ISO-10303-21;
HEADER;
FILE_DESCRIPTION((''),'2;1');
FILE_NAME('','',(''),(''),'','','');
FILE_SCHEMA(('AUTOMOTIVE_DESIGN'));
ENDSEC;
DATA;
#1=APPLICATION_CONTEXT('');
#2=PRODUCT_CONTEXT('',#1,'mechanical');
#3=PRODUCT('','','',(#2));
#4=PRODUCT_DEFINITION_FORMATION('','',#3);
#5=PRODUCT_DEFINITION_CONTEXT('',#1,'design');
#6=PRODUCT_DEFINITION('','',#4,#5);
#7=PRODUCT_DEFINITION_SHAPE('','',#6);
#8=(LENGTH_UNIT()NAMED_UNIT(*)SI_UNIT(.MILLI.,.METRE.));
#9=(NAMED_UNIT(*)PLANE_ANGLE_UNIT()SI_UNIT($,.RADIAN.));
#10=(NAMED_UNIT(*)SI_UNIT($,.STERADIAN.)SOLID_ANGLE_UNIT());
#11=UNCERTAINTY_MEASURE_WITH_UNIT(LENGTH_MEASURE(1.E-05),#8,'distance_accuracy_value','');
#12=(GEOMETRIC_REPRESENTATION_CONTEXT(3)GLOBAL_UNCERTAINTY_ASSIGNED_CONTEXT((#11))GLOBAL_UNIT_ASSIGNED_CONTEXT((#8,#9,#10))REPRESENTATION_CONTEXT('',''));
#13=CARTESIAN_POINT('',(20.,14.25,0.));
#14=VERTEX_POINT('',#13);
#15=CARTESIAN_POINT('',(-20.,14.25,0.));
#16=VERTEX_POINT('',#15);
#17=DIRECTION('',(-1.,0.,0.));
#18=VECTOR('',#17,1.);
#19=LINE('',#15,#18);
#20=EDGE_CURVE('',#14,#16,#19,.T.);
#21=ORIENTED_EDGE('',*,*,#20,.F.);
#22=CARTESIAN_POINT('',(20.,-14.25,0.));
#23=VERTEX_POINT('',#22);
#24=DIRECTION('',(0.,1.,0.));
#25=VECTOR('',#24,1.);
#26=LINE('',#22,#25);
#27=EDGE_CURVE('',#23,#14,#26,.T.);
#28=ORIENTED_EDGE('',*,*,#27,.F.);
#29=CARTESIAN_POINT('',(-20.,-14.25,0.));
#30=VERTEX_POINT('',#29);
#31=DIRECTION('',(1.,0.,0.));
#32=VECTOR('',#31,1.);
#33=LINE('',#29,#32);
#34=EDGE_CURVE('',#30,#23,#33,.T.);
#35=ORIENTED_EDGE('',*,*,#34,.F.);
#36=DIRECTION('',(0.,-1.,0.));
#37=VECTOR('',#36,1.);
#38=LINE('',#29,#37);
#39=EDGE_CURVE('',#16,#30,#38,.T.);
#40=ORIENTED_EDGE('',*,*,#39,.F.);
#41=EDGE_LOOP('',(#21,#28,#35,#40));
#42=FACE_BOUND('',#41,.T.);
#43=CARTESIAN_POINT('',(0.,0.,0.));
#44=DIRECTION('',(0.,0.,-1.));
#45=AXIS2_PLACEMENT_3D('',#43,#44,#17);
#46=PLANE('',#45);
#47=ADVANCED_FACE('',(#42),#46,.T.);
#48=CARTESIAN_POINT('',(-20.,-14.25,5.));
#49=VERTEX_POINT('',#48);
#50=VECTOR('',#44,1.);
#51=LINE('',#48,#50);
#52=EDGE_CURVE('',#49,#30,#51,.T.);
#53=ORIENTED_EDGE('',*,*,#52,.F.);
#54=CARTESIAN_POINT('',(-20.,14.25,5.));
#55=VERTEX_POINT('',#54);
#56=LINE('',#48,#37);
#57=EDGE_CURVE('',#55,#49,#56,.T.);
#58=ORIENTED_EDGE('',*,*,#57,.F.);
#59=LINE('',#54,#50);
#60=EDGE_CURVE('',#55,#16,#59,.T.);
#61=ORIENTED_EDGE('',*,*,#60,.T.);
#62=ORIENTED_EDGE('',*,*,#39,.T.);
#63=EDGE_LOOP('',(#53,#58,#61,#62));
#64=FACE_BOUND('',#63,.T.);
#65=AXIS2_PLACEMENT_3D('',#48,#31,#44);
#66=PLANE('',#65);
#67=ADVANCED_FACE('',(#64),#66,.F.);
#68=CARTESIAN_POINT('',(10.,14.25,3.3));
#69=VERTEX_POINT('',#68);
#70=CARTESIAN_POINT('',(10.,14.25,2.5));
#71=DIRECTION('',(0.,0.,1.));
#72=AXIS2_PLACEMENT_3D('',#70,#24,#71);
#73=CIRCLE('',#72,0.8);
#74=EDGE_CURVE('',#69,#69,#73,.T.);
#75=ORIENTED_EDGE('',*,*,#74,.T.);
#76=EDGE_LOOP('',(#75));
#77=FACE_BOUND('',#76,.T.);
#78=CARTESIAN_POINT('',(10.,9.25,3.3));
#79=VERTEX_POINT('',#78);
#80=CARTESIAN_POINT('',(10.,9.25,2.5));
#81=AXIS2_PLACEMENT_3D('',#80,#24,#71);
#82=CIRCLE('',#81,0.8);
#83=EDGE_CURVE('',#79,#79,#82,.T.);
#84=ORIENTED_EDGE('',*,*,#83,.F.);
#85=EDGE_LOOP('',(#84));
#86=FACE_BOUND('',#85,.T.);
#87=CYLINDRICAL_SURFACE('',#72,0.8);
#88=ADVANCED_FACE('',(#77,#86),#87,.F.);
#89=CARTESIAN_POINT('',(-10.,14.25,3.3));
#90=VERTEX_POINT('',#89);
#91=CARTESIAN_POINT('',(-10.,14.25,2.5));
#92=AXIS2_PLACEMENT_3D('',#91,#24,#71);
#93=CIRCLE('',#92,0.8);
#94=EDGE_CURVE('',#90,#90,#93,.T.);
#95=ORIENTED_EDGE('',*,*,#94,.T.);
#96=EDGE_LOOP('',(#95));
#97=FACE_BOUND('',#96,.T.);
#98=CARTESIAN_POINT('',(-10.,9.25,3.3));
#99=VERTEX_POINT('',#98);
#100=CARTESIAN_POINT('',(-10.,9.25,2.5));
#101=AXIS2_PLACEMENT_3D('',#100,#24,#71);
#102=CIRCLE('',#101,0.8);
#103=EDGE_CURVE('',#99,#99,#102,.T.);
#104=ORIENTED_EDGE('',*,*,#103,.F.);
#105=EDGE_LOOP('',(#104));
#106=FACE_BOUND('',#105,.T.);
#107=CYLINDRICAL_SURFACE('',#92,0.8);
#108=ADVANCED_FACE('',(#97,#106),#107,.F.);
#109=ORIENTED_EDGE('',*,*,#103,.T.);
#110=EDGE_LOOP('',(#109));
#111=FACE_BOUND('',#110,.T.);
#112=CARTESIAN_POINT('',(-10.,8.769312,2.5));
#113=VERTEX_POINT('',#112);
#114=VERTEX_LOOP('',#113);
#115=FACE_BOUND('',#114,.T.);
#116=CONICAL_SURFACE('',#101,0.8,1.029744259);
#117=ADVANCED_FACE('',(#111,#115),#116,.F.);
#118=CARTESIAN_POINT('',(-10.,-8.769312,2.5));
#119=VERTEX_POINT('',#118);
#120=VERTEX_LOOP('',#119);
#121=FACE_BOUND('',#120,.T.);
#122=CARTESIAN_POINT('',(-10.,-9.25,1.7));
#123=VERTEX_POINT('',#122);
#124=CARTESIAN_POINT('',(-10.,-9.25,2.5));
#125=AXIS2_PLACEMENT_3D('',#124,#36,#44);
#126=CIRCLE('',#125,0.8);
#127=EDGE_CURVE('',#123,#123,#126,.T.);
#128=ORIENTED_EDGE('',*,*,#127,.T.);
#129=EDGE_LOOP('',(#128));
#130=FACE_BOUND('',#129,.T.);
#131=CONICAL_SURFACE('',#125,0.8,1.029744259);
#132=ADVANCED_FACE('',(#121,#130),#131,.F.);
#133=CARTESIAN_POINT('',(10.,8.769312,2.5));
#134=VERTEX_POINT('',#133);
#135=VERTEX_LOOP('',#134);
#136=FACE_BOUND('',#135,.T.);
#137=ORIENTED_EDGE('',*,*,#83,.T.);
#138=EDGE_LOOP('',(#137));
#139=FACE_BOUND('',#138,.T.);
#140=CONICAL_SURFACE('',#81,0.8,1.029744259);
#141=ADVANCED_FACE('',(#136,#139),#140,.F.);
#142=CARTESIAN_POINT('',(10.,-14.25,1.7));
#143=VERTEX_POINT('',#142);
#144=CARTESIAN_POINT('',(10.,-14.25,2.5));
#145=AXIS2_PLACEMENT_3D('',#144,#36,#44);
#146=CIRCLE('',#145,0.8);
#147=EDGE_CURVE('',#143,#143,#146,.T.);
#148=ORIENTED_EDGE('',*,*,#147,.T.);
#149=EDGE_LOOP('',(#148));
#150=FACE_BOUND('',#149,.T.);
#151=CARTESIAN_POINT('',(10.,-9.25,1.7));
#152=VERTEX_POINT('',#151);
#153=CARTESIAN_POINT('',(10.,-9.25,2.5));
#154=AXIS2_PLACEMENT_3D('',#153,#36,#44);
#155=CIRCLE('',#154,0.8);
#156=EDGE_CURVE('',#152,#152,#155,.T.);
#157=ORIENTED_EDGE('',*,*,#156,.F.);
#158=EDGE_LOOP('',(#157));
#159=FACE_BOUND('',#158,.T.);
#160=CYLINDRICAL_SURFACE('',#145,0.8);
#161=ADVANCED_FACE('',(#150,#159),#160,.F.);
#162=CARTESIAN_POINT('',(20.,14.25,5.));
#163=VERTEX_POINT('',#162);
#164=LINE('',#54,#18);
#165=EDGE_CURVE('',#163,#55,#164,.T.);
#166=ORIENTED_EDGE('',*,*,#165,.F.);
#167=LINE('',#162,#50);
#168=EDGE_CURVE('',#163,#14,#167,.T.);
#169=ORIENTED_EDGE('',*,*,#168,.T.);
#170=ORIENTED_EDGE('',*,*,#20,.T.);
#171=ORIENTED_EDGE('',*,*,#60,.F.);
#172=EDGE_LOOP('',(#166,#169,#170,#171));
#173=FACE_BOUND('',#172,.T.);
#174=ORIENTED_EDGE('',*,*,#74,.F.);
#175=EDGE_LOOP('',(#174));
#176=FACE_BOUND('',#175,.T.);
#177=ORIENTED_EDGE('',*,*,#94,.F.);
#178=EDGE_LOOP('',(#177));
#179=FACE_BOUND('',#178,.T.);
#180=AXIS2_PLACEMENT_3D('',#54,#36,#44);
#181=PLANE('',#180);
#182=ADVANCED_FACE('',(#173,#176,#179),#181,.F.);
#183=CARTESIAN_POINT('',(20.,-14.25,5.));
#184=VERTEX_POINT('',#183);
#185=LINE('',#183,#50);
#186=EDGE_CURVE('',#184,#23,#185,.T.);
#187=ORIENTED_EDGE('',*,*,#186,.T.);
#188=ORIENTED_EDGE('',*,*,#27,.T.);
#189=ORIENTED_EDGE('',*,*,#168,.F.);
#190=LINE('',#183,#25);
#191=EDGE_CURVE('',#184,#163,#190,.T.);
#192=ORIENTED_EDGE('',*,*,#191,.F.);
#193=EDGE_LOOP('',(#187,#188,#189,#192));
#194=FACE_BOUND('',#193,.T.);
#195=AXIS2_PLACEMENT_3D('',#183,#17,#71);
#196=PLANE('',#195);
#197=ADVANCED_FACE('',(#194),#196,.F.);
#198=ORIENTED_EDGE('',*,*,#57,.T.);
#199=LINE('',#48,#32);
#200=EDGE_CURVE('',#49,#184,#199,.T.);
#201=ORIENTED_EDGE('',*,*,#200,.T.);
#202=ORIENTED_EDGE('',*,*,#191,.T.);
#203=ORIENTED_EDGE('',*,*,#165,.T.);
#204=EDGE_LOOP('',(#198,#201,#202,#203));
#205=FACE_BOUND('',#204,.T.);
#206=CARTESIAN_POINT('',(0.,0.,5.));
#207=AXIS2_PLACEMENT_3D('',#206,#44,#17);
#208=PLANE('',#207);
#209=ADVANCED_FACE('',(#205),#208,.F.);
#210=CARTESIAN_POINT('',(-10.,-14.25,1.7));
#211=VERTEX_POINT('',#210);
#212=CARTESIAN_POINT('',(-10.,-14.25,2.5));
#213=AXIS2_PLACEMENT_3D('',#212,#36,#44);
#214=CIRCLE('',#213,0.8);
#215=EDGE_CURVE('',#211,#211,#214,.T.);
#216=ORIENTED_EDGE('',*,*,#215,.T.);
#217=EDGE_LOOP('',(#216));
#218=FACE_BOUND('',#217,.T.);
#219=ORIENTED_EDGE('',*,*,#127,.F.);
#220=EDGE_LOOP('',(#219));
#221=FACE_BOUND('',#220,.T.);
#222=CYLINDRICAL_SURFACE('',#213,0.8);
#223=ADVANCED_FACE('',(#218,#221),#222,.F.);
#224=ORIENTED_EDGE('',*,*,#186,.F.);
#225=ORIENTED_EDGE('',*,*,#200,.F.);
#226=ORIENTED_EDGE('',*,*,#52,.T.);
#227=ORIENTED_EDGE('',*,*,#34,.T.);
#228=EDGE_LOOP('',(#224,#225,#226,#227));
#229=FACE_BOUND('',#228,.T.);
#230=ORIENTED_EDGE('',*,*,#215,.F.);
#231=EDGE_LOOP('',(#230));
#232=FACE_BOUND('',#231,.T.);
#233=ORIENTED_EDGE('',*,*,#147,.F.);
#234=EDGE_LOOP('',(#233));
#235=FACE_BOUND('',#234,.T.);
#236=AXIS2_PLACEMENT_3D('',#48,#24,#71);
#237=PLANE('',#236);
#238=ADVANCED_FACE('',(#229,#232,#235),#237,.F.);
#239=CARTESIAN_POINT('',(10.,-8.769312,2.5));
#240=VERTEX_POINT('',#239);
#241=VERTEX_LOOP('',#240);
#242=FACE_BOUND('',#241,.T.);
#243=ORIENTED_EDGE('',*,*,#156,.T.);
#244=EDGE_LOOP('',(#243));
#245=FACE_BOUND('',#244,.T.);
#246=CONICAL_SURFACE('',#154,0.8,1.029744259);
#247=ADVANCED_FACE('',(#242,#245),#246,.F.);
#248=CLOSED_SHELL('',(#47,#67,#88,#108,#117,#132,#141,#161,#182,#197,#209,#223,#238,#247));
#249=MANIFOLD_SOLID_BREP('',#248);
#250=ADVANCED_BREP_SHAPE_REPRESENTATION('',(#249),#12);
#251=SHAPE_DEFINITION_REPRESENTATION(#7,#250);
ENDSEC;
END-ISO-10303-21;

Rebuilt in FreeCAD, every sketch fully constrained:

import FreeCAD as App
import Part
import Sketcher
Q = App.Units.Quantity

doc = App.newDocument("Part")
body = doc.addObject("PartDesign::Body", "Body")

sketch1 = doc.addObject("Sketcher::SketchObject", "Sketch")
body.addObject(sketch1)
sketch1.AttachmentSupport = (doc.XY_Plane, [""])
sketch1.MapMode = "FlatFace"
sketch1.addGeometry([
    Part.LineSegment(App.Vector(-20, 14, 0), App.Vector(-20, -14, 0)),
    Part.LineSegment(App.Vector(-20, -14, 0), App.Vector(20, -14, 0)),
    Part.LineSegment(App.Vector(20, -14, 0), App.Vector(20, 14, 0)),
    Part.LineSegment(App.Vector(20, 14, 0), App.Vector(-20, 14, 0)),
], False)
sketch1.addConstraint([
    Sketcher.Constraint("Coincident", 0, 2, 1, 1),
    Sketcher.Constraint("Coincident", 1, 2, 2, 1),
    Sketcher.Constraint("Coincident", 2, 2, 3, 1),
    Sketcher.Constraint("Coincident", 3, 2, 0, 1),
    Sketcher.Constraint("Vertical", 0),
    Sketcher.Constraint("Horizontal", 1),
    Sketcher.Constraint("Vertical", 2),
    Sketcher.Constraint("Horizontal", 3),
    Sketcher.Constraint("Symmetric", 0, 2, 2, 2, -1, 1),
    Sketcher.Constraint("DistanceX", 1, 1, 1, 2, 40.0),
    Sketcher.Constraint("DistanceY", 0, 2, 0, 1, 28.5),
])
pad1 = doc.addObject("PartDesign::Pad", "Pad")
body.addObject(pad1)
pad1.Profile = sketch1
pad1.Length = 5

sketch2 = doc.addObject("Sketcher::SketchObject", "Sketch001")
body.addObject(sketch2)
sketch2.AttachmentSupport = (doc.YZ_Plane, [""])
sketch2.MapMode = "FlatFace"
sketch2.AttachmentOffset = App.Placement(App.Vector(0, 0, -10), App.Rotation())
sketch2.addGeometry([
    Part.LineSegment(App.Vector(8.8, 2.5, 0), App.Vector(14.2, 2.5, 0)),
    Part.LineSegment(App.Vector(14.2, 2.5, 0), App.Vector(14.2, 3.3, 0)),
    Part.LineSegment(App.Vector(14.2, 3.3, 0), App.Vector(9.2, 3.3, 0)),
    Part.LineSegment(App.Vector(9.2, 3.3, 0), App.Vector(8.8, 2.5, 0)),
], False)
sketch2.addGeometry(Part.LineSegment(App.Vector(14.2, 2.5, 0), App.Vector(8.8, 2.5, 0)), True)
sketch2.addConstraint([
    Sketcher.Constraint("Coincident", 0, 2, 1, 1),
    Sketcher.Constraint("Coincident", 1, 2, 2, 1),
    Sketcher.Constraint("Coincident", 2, 2, 3, 1),
    Sketcher.Constraint("Coincident", 3, 2, 0, 1),
    Sketcher.Constraint("Horizontal", 0),
    Sketcher.Constraint("Vertical", 1),
    Sketcher.Constraint("Horizontal", 2),
    Sketcher.Constraint("Horizontal", 4),
    Sketcher.Constraint("Coincident", 4, 1, 0, 2),
    Sketcher.Constraint("Equal", 0, 4),
    Sketcher.Constraint("DistanceX", 2, 2, 2, 1, 5.0),
    Sketcher.Constraint("Angle", 3, Q("-121 deg")),
    Sketcher.Constraint("DistanceY", 1, 1, 1, 2, 0.8),
    Sketcher.Constraint("DistanceY", -1, 1, 0, 2, 2.5),
    Sketcher.Constraint("DistanceX", -1, 1, 0, 2, 14.25),
])
groove = doc.addObject("PartDesign::Groove", "Groove")
body.addObject(groove)
groove.Profile = sketch2
groove.ReferenceAxis = (sketch2, ["Axis0"])
groove.Angle = 360
doc.recompute()

linearpattern = doc.addObject("PartDesign::LinearPattern", "LinearPattern")
body.addObject(linearpattern)
linearpattern.Originals = [groove]
linearpattern.Direction = (doc.X_Axis, [""])
linearpattern.Mode = "offset"
linearpattern.Offset = 20
linearpattern.Occurrences = 2
body.Tip = linearpattern
doc.recompute()

mirrored = doc.addObject("PartDesign::Mirrored", "Mirrored")
body.addObject(mirrored)
mirrored.Originals = [groove]
mirrored.MirrorPlane = (doc.XZ_Plane, [""])
body.Tip = mirrored

sketch3 = doc.addObject("Sketcher::SketchObject", "Sketch002")
body.addObject(sketch3)
sketch3.AttachmentSupport = (doc.YZ_Plane, [""])
sketch3.MapMode = "FlatFace"
sketch3.AttachmentOffset = App.Placement(App.Vector(0, 0, 10), App.Rotation())
sketch3.addGeometry([
    Part.LineSegment(App.Vector(-14.2, 2.5, 0), App.Vector(-8.8, 2.5, 0)),
    Part.LineSegment(App.Vector(-8.8, 2.5, 0), App.Vector(-9.2, 3.3, 0)),
    Part.LineSegment(App.Vector(-9.2, 3.3, 0), App.Vector(-14.2, 3.3, 0)),
    Part.LineSegment(App.Vector(-14.2, 3.3, 0), App.Vector(-14.2, 2.5, 0)),
], False)
sketch3.addGeometry(Part.LineSegment(App.Vector(-8.8, 2.5, 0), App.Vector(-14.2, 2.5, 0)), True)
sketch3.addConstraint([
    Sketcher.Constraint("Coincident", 0, 2, 1, 1),
    Sketcher.Constraint("Coincident", 1, 2, 2, 1),
    Sketcher.Constraint("Coincident", 2, 2, 3, 1),
    Sketcher.Constraint("Coincident", 3, 2, 0, 1),
    Sketcher.Constraint("Horizontal", 0),
    Sketcher.Constraint("Horizontal", 2),
    Sketcher.Constraint("Vertical", 3),
    Sketcher.Constraint("Horizontal", 4),
    Sketcher.Constraint("Coincident", 4, 1, 0, 2),
    Sketcher.Constraint("Vertical", 2, 2, 4, 2),
    Sketcher.Constraint("DistanceX", 2, 2, 2, 1, 5.0),
    Sketcher.Constraint("Angle", 1, Q("121 deg")),
    Sketcher.Constraint("DistanceY", 3, 2, 3, 1, 0.8),
    Sketcher.Constraint("DistanceY", -1, 1, 0, 2, 2.5),
    Sketcher.Constraint("DistanceX", 1, 2, -1, 1, 9.25),
])
groove2 = doc.addObject("PartDesign::Groove", "Groove001")
body.addObject(groove2)
groove2.Profile = sketch3
groove2.ReferenceAxis = (sketch3, ["Axis0"])
groove2.Angle = 360

doc.recompute()
